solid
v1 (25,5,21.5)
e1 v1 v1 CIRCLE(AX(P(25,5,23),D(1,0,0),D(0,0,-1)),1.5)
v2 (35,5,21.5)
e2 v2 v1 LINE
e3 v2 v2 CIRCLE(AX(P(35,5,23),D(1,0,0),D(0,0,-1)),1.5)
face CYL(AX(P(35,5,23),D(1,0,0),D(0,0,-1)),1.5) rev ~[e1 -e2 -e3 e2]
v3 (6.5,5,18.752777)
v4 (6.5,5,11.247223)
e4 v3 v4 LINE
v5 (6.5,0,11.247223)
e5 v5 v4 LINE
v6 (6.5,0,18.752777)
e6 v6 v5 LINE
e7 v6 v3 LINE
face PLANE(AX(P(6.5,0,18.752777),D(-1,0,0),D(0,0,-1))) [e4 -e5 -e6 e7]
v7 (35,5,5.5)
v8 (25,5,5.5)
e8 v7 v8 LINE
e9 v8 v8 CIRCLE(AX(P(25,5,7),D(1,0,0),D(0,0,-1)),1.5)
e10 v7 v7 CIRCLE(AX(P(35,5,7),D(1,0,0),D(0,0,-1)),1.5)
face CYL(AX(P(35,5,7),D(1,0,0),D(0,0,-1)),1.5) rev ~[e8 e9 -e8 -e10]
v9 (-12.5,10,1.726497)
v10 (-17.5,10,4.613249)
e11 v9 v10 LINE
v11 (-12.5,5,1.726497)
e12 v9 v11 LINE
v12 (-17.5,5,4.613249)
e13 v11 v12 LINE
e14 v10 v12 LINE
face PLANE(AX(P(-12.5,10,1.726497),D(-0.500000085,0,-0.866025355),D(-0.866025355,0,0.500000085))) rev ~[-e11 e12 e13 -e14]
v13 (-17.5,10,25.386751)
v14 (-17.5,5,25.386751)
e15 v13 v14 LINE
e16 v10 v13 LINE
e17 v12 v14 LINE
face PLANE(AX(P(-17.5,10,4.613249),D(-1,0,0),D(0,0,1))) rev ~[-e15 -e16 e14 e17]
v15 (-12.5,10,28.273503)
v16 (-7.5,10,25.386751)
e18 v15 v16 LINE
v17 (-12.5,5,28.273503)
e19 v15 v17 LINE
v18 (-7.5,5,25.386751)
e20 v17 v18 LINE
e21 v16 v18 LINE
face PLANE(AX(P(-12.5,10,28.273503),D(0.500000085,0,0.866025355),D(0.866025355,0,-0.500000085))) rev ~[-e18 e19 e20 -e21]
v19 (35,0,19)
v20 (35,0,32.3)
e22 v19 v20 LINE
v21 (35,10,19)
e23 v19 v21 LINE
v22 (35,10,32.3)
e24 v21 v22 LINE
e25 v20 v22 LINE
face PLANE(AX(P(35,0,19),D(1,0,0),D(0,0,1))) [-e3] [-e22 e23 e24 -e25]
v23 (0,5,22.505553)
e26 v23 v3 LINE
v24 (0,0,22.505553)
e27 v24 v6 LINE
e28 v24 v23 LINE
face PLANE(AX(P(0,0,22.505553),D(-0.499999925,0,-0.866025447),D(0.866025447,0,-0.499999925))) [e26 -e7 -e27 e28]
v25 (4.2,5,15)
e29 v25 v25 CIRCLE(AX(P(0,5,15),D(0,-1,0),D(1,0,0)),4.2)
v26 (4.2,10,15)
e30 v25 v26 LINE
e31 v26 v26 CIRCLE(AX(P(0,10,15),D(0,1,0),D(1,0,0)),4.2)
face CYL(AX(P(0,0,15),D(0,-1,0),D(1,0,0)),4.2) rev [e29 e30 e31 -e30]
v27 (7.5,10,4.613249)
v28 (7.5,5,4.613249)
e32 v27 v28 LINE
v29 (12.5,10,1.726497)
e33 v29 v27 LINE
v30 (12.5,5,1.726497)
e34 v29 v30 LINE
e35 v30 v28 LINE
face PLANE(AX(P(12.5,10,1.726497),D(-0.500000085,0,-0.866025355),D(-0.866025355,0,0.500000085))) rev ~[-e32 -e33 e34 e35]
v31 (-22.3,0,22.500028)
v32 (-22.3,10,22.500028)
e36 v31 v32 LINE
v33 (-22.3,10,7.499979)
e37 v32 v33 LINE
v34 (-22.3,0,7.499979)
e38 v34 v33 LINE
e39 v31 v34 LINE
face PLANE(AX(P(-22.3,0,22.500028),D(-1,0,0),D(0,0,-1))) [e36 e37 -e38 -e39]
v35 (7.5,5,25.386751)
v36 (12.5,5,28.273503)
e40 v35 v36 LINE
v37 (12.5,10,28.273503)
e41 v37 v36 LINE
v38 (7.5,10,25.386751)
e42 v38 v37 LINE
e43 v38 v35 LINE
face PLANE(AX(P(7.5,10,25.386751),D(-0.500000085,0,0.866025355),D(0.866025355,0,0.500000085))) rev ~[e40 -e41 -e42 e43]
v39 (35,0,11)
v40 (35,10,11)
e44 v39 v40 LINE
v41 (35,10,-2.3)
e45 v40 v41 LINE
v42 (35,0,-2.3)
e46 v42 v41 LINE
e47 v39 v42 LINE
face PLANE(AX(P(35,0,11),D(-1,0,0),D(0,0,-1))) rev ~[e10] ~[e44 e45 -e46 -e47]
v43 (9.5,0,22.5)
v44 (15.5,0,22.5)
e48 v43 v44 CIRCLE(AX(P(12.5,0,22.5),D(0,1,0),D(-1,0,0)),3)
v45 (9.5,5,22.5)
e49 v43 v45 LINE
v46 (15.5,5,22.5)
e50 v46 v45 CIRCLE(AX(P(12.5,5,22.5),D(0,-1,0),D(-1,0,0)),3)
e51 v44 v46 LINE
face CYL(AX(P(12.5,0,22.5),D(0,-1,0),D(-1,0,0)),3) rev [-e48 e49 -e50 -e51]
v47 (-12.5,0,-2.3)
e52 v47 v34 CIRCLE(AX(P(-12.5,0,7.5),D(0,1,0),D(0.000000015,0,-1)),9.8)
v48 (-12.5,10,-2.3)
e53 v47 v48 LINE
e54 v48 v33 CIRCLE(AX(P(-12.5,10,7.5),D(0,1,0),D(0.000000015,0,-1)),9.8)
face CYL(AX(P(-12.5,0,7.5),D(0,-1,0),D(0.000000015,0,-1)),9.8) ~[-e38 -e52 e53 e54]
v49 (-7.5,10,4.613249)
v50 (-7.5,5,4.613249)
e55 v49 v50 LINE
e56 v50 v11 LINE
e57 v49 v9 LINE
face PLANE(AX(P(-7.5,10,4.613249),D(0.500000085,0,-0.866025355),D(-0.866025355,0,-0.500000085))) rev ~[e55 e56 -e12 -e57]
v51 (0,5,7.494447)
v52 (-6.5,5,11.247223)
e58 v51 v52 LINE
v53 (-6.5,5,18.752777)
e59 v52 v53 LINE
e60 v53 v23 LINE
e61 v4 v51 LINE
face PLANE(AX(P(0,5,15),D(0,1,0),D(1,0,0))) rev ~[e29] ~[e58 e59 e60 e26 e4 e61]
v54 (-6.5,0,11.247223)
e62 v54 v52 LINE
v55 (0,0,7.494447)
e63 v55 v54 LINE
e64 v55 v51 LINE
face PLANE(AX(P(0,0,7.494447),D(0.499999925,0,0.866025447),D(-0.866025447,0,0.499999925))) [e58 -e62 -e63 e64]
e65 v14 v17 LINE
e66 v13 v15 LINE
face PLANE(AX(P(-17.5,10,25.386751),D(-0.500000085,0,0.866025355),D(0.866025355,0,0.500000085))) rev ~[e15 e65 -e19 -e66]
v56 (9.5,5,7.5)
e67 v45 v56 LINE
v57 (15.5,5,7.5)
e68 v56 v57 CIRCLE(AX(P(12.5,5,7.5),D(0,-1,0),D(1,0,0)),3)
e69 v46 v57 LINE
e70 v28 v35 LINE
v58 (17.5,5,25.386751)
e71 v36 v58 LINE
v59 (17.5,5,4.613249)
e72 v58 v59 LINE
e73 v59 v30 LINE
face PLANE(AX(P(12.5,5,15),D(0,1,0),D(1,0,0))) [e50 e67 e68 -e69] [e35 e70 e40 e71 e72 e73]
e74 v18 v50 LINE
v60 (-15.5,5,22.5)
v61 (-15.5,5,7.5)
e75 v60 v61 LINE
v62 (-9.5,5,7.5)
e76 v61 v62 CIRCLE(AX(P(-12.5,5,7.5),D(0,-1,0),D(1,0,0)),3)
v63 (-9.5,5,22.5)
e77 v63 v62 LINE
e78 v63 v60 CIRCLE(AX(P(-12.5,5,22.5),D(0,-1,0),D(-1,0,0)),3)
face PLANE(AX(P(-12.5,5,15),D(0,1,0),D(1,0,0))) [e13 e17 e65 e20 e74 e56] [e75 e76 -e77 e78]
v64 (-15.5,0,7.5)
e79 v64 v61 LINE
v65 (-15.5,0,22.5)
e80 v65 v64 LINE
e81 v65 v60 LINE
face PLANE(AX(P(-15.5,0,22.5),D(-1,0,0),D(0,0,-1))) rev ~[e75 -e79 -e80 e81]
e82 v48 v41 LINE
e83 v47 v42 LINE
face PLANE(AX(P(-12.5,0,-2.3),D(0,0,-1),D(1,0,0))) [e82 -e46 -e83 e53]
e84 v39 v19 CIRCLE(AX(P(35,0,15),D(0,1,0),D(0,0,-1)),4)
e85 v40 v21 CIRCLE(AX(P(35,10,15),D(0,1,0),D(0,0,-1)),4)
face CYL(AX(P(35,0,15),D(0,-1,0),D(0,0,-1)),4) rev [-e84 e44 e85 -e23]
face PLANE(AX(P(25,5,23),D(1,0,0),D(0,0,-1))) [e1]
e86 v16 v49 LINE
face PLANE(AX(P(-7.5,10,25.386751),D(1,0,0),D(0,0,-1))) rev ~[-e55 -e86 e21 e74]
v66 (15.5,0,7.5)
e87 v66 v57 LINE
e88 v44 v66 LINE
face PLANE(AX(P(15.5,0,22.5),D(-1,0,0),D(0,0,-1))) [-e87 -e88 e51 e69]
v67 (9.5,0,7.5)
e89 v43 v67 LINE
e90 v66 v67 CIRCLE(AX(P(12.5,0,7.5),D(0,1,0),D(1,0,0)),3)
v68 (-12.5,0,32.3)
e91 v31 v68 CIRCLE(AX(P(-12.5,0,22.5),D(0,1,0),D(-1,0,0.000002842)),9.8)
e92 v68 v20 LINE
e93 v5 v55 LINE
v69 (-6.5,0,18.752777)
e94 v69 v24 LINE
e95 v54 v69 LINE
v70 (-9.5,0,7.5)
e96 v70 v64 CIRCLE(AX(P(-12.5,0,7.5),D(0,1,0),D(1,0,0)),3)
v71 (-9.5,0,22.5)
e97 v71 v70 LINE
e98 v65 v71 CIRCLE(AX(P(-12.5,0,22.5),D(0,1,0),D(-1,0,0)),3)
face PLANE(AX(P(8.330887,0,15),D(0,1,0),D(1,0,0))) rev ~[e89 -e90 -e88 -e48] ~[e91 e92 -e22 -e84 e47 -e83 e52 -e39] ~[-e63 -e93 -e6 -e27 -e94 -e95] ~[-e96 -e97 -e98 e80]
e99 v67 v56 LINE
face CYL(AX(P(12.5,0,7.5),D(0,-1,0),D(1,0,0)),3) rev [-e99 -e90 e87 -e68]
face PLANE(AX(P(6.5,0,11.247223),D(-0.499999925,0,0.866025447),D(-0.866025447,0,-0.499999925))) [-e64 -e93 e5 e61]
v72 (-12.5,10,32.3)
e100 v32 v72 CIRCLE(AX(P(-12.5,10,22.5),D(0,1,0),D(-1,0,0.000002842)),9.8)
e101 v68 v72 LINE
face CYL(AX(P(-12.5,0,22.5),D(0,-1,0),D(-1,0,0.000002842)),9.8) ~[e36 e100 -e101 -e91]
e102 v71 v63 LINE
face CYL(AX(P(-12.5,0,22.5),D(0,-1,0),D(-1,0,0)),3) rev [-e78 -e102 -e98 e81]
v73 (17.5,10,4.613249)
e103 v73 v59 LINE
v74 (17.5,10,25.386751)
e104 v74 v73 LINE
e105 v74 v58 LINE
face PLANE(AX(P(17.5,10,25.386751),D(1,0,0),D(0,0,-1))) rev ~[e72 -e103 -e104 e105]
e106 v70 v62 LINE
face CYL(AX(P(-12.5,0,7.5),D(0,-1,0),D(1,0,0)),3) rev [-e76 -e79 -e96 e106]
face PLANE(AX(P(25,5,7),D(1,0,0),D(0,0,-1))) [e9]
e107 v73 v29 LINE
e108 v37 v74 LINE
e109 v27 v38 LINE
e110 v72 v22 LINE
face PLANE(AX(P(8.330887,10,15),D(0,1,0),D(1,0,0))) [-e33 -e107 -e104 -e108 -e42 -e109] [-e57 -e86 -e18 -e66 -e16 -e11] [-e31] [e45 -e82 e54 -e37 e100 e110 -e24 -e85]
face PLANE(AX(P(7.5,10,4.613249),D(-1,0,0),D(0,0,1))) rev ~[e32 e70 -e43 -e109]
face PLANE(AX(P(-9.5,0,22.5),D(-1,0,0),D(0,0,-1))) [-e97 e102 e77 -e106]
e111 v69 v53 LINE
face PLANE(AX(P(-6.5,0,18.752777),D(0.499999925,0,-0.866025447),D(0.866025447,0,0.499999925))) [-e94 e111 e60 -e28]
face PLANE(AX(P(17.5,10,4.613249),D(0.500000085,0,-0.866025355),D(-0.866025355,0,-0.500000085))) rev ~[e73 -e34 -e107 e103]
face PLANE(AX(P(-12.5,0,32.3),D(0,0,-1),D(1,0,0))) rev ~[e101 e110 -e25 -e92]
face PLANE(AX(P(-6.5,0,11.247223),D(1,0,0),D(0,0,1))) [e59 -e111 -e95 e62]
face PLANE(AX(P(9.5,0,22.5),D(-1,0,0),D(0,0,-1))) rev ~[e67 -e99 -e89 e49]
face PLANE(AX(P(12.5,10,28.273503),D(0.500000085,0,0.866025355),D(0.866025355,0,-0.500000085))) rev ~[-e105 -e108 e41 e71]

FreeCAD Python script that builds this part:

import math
import FreeCAD as App
import Part
import Sketcher

V = App.Vector
Q = App.Units.Quantity


def add_polygon(sketch, points):
    """Adds a closed chain of lines whose ends are joined by coincident constraints."""
    first, n = sketch.GeometryCount, len(points)
    for a, b in zip(points, points[1:] + points[:1]):
        sketch.addGeometry(Part.LineSegment(App.Vector(*a, 0), App.Vector(*b, 0)), False)
    for i in range(n):
        sketch.addConstraint(Sketcher.Constraint("Coincident", first + i, 2, first + (i + 1) % n, 1))

doc = App.newDocument("Part")
body = doc.addObject("PartDesign::Body", "Body")

# Sketch on XY plane
sketch1 = doc.addObject("Sketcher::SketchObject", "Sketch")
body.addObject(sketch1)
sketch1.AttachmentSupport = (doc.XY_Plane, [""])
sketch1.MapMode = "FlatFace"
sketch1.addGeometry([
    Part.ArcOfCircle(Part.Circle(V(-12.5, -7.5, 0), V(0, 0, 1), 9.8), math.radians(-180), math.radians(-90)),  # 0
    Part.LineSegment(V(-12.5, -17.3, 0), V(35, -17.3, 0)),  # 1
    Part.LineSegment(V(35, -17.3, 0), V(35, -4, 0)),  # 2
    Part.ArcOfCircle(Part.Circle(V(35, 0, 0), V(0, 0, 1), 4), math.radians(90), math.radians(270)),  # 3
    Part.LineSegment(V(35, 4, 0), V(35, 17.3, 0)),  # 4
    Part.LineSegment(V(35, 17.3, 0), V(-12.5, 17.3, 0)),  # 5
    Part.ArcOfCircle(Part.Circle(V(-12.5, 7.5, 0), V(0, 0, 1), 9.8), math.radians(90), math.radians(180)),  # 6
    Part.LineSegment(V(-22.3, 7.5, 0), V(-22.3, -7.5, 0)),  # 7
    Part.ArcOfCircle(Part.Circle(V(-12.5, -7.5, 0), V(0, 0, 1), 3), math.radians(180), math.radians(360)),  # 8
    Part.LineSegment(V(-15.5, -7.5, 0), V(-15.5, 7.5, 0)),  # 9
    Part.ArcOfCircle(Part.Circle(V(-12.5, 7.5, 0), V(0, 0, 1), 3), math.radians(0), math.radians(180)),  # 10
    Part.LineSegment(V(-9.5, 7.5, 0), V(-9.5, -7.5, 0)),  # 11
    Part.Circle(V(0, 0, 0), V(0, 0, 1), 4.2),  # 12
    Part.ArcOfCircle(Part.Circle(V(12.5, -7.5, 0), V(0, 0, 1), 3), math.radians(180), math.radians(360)),  # 13
    Part.LineSegment(V(9.5, -7.5, 0), V(9.5, 7.5, 0)),  # 14
    Part.ArcOfCircle(Part.Circle(V(12.5, 7.5, 0), V(0, 0, 1), 3), math.radians(0), math.radians(180)),  # 15
    Part.LineSegment(V(15.5, 7.5, 0), V(15.5, -7.5, 0)),  # 16
], False)
sketch1.addConstraint([
    Sketcher.Constraint("Tangent", 0, 2, 1, 1),
    Sketcher.Constraint("Coincident", 1, 2, 2, 1),
    Sketcher.Constraint("Coincident", 2, 2, 3, 2),
    Sketcher.Constraint("Coincident", 3, 1, 4, 1),
    Sketcher.Constraint("Coincident", 4, 2, 5, 1),
    Sketcher.Constraint("Tangent", 5, 2, 6, 1),
    Sketcher.Constraint("Coincident", 6, 2, 7, 1),
    Sketcher.Constraint("Coincident", 7, 2, 0, 1),
    Sketcher.Constraint("Tangent", 8, 1, 9, 1),
    Sketcher.Constraint("Tangent", 9, 2, 10, 2),
    Sketcher.Constraint("Tangent", 10, 1, 11, 1),
    Sketcher.Constraint("Tangent", 11, 2, 8, 2),
    Sketcher.Constraint("Tangent", 13, 1, 14, 1),
    Sketcher.Constraint("Tangent", 14, 2, 15, 2),
    Sketcher.Constraint("Tangent", 15, 1, 16, 1),
    Sketcher.Constraint("Tangent", 16, 2, 13, 2),
    Sketcher.Constraint("Horizontal", 1),
    Sketcher.Constraint("Vertical", 2),
    Sketcher.Constraint("Vertical", 4),
    Sketcher.Constraint("Horizontal", 5),
    Sketcher.Constraint("Vertical", 7),
    Sketcher.Constraint("Vertical", 9),
    Sketcher.Constraint("Vertical", 11),
    Sketcher.Constraint("Vertical", 14),
    Sketcher.Constraint("Vertical", 16),
    Sketcher.Constraint("Coincident", 12, 3, -1, 1),
    Sketcher.Constraint("Coincident", 8, 3, 0, 3),
    Sketcher.Constraint("Coincident", 10, 3, 6, 3),
    Sketcher.Constraint("Equal", 10, 13),
    Sketcher.Constraint("Symmetric", 6, 3, 13, 3, -1, 1),
    Sketcher.Constraint("Symmetric", 2, 2, 3, 1, -1),
    Sketcher.Constraint("Horizontal", 8, 3, 13, 3),
    Sketcher.Constraint("Horizontal", 10, 3, 15, 3),
    Sketcher.Constraint("Vertical", 3, 3, 1, 2),
    Sketcher.Constraint("Radius", 3, Q("4 mm")),
    Sketcher.Constraint("Radius", 8, Q("3 mm")),
    Sketcher.Constraint("Diameter", 12, Q("8.4 mm")),
    Sketcher.Constraint("Radius", 0, Q("9.8 mm")),
    Sketcher.Constraint("DistanceY", 9, 1, 9, 2, Q("15 mm")),
    Sketcher.Constraint("DistanceX", 1, 1, 1, 2, Q("47.5 mm")),
    Sketcher.Constraint("DistanceX", -1, 1, 3, 3, Q("35 mm")),
    Sketcher.Constraint("DistanceY", 7, 2, 7, 1, Q("15.000049 mm")),
    Sketcher.Constraint("DistanceY", -1, 1, 6, 2, Q("7.500021 mm")),
])
pad1 = doc.addObject("PartDesign::Pad", "Pad")
body.addObject(pad1)
pad1.Profile = sketch1
pad1.Length = 10

# Sketch on XY plane
sketch2 = doc.addObject("Sketcher::SketchObject", "Sketch001")
body.addObject(sketch2)
sketch2.AttachmentSupport = (doc.XY_Plane, [""])
sketch2.MapMode = "FlatFace"
sketch2.AttachmentOffset = App.Placement(V(0, 0, 10), App.Rotation())
add_polygon(sketch2, [(-12, 13), (-18, 10), (-18, -10), (-12, -13), (-8, -10), (-8, 10)])  # lines 0-5
add_polygon(sketch2, [(8, -10), (12, -13), (18, -10), (18, 10), (12, 13), (8, 10)])  # lines 6-11
sketch2.addConstraint([
    Sketcher.Constraint("Vertical", 1),
    Sketcher.Constraint("Vertical", 4),
    Sketcher.Constraint("Vertical", 8),
    Sketcher.Constraint("Vertical", 11),
    Sketcher.Constraint("Symmetric", 5, 2, 6, 2, -1, 1),
    Sketcher.Constraint("Symmetric", 0, 2, 7, 2, -1, 1),
    Sketcher.Constraint("Symmetric", 2, 2, 9, 2, -1, 1),
    Sketcher.Constraint("Symmetric", 3, 2, 10, 2, -1, 1),
    Sketcher.Constraint("Symmetric", 2, 2, 6, 2, -2),
    Sketcher.Constraint("Parallel", 0, 3),
    Sketcher.Constraint("Parallel", 2, 5),
    Sketcher.Constraint("Parallel", 5, 6),
    Sketcher.Constraint("Parallel", 6, 9),
    Sketcher.Constraint("Horizontal", 1, 2, 3, 2),
    Sketcher.Constraint("Horizontal", 0, 2, 4, 2),
    Sketcher.Constraint("Angle", 0, Q("-149.999994 deg")),
    Sketcher.Constraint("DistanceX", 1, 2, 2, 2, Q("5 mm")),
    Sketcher.Constraint("DistanceX", 3, 2, 6, 2, Q("20 mm")),
    Sketcher.Constraint("DistanceY", 1, 2, 1, 1, Q("20.773502 mm")),
])
pocket1 = doc.addObject("PartDesign::Pocket", "Pocket")
body.addObject(pocket1)
pocket1.Profile = sketch2
pocket1.Length = 5

# Sketch on XY plane
sketch3 = doc.addObject("Sketcher::SketchObject", "Sketch002")
body.addObject(sketch3)
sketch3.AttachmentSupport = (doc.XY_Plane, [""])
sketch3.MapMode = "FlatFace"
add_polygon(sketch3, [(-6, 4), (-6, -4), (0, -8), (6, -4), (6, 4), (0, 8)])  # lines 0-5
sketch3.addConstraint([
    Sketcher.Constraint("Vertical", 0),
    Sketcher.Constraint("Vertical", 3),
    Sketcher.Constraint("Symmetric", 0, 2, 3, 2, -1, 1),
    Sketcher.Constraint("Symmetric", 1, 2, 4, 2, -1, 1),
    Sketcher.Constraint("PointOnObject", 1, 2, -2),
    Sketcher.Constraint("Parallel", 2, 5),
    Sketcher.Constraint("Horizontal", 0, 2, 2, 2),
    Sketcher.Constraint("Angle", 1, Q("-29.999995 deg")),
    Sketcher.Constraint("DistanceX", 0, 2, 2, 2, Q("13 mm")),
    Sketcher.Constraint("DistanceY", 0, 2, 0, 1, Q("7.505554 mm")),
])
pocket2 = doc.addObject("PartDesign::Pocket", "Pocket001")
body.addObject(pocket2)
pocket2.Profile = sketch3
pocket2.Length = 5
pocket2.Reversed = True

# Sketch on YZ plane
sketch4 = doc.addObject("Sketcher::SketchObject", "Sketch003")
body.addObject(sketch4)
sketch4.AttachmentSupport = (doc.YZ_Plane, [""])
sketch4.MapMode = "FlatFace"
sketch4.AttachmentOffset = App.Placement(V(0, 0, 35), App.Rotation())
sketch4.addGeometry([
    Part.Circle(V(-8, 5, 0), V(0, 0, 1), 1.5),
    Part.Circle(V(8, 5, 0), V(0, 0, 1), 1.5),
], False)
sketch4.addConstraint([
    Sketcher.Constraint("Equal", 0, 1),
    Sketcher.Constraint("Symmetric", 0, 3, 1, 3, -2),
    Sketcher.Constraint("Diameter", 0, Q("3 mm")),
    Sketcher.Constraint("DistanceX", 0, 3, -1, 1, Q("8 mm")),
    Sketcher.Constraint("DistanceY", -1, 1, 0, 3, Q("5 mm")),
])
pocket3 = doc.addObject("PartDesign::Pocket", "Pocket002")
body.addObject(pocket3)
pocket3.Profile = sketch4
pocket3.Length = 10
body2 = doc.addObject("PartDesign::Body", "Body001")
doc.recompute()

body.Placement = App.Placement(V(0, 0, 15), App.Rotation(V(1, 0, 0), 270))
boolean = doc.addObject("PartDesign::Boolean", "Boolean")
body2.addObject(boolean)
boolean.Type = "Fuse"
boolean.addObjects([body])

doc.recompute()
